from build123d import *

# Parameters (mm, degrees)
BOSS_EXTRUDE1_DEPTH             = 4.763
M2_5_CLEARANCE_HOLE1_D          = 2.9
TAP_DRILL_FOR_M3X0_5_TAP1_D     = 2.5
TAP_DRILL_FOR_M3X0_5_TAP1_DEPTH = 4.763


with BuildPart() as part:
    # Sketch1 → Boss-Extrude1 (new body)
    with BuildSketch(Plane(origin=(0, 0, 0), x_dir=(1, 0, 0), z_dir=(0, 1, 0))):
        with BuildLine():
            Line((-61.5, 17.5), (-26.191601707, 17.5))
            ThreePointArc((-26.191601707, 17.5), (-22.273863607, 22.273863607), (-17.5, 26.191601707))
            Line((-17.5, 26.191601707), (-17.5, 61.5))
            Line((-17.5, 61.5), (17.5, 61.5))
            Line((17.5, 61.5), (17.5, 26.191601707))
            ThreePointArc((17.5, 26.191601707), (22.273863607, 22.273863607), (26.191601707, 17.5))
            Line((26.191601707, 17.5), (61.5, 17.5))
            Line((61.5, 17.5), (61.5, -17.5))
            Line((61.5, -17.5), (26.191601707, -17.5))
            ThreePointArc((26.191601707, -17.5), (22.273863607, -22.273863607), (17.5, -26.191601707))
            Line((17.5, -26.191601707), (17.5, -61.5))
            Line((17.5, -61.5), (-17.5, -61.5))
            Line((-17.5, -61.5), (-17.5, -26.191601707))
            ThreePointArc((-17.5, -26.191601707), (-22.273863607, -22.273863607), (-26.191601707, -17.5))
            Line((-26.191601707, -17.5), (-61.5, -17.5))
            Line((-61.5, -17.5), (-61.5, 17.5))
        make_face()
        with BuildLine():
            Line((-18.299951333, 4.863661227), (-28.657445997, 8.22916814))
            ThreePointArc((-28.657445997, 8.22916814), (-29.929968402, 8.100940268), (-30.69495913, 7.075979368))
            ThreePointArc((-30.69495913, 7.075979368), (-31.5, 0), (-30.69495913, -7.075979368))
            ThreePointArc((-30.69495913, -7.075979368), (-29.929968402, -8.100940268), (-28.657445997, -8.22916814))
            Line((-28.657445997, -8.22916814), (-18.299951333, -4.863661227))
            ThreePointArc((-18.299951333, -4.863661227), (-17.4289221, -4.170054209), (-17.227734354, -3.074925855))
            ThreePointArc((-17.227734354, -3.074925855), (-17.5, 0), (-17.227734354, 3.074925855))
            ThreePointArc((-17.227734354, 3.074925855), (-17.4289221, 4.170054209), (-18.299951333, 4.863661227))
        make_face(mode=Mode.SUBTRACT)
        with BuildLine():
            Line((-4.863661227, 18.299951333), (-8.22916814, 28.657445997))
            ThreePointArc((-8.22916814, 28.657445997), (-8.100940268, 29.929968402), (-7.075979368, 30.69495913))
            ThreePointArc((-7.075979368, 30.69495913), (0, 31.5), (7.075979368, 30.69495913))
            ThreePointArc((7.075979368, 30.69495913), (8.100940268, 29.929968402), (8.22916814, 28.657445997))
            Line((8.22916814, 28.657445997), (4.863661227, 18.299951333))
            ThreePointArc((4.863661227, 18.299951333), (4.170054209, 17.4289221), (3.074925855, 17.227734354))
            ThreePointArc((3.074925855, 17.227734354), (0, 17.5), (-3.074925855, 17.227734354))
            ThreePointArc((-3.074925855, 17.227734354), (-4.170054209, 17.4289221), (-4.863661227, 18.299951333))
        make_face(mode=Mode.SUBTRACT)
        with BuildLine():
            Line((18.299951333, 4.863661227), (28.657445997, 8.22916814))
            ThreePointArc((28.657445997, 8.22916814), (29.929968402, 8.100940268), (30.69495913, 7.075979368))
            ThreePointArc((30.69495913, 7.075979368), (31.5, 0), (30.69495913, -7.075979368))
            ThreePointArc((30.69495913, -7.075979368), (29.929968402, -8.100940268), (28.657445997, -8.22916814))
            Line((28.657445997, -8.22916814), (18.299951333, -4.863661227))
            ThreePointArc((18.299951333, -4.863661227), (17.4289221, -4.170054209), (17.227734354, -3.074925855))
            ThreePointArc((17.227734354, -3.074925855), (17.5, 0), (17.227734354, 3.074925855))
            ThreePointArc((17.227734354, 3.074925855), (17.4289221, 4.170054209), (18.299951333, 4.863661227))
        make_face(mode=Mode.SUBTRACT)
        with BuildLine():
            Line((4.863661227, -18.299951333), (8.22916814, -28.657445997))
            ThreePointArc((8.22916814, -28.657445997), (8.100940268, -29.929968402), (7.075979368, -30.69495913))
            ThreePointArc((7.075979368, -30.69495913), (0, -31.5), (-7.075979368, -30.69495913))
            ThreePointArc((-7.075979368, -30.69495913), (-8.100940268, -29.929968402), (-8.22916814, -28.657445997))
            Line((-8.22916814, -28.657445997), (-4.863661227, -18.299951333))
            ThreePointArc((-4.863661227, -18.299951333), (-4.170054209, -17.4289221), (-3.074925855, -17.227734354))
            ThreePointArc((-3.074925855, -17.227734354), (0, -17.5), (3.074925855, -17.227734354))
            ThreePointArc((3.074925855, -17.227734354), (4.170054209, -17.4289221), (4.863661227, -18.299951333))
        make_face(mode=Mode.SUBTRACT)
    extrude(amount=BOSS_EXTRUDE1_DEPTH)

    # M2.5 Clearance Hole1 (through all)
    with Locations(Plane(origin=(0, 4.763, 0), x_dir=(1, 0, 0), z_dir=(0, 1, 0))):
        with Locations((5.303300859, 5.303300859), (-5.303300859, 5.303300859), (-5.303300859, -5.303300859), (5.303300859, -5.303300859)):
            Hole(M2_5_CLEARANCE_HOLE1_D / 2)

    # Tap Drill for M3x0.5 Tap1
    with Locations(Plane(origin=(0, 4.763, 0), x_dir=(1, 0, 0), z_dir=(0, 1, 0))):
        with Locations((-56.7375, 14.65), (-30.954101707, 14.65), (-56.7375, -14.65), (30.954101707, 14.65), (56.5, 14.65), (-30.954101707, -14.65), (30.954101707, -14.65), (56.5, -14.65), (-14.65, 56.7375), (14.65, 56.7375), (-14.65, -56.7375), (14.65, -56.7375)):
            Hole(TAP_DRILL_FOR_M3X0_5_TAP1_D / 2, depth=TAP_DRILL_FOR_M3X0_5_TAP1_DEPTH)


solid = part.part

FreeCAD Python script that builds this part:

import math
import FreeCAD as App
import Part
import Sketcher
from FreeCAD import Vector

doc = App.newDocument("Part")
params = doc.addObject("Spreadsheet::Sheet", "Params")
for row, (alias, value) in enumerate([
    ("sketch1_radius", "31.5 mm"),
    ("sketch1_radius2", "17.5 mm"),
    ("sketch1_width", "35 mm"),
    ("pad1_length", "4.763 mm"),
    ("sketch2_diameter", "2.9 mm"),
    ("hole_diameter", "2.9 mm"),
    ("sketch3_diameter", "2.5 mm"),
    ("hole2_diameter", "2.5 mm"),
    ("hole2_depth", "4.763 mm"),
], start=1):
    params.set(f"A{row}", alias)
    params.set(f"B{row}", "=" + value)
    params.setAlias(f"B{row}", alias)

body = doc.addObject("PartDesign::Body", "Body")

# Sketch on XZ plane
sketch1 = body.newObject("Sketcher::SketchObject", "Sketch")
sketch1.AttachmentSupport = (doc.getObject("XZ_Plane"), [""])
sketch1.MapMode = "FlatFace"
sketch1.addGeometry(Part.LineSegment(Vector(-26.2, -17.5, 0), Vector(-61.5, -17.5, 0)), False)
sketch1.addGeometry(Part.LineSegment(Vector(-61.5, -17.5, 0), Vector(-61.5, 17.5, 0)), False)
sketch1.addGeometry(Part.LineSegment(Vector(-61.5, 17.5, 0), Vector(-26.2, 17.5, 0)), False)
sketch1.addGeometry(Part.ArcOfCircle(Part.Circle(Vector(0, 0, 0), Vector(0, 0, 1), 31.5), math.radians(124), math.radians(146)), False)
sketch1.addGeometry(Part.LineSegment(Vector(-17.5, 26.2, 0), Vector(-17.5, 61.5, 0)), False)
sketch1.addGeometry(Part.LineSegment(Vector(-17.5, 61.5, 0), Vector(17.5, 61.5, 0)), False)
sketch1.addGeometry(Part.LineSegment(Vector(17.5, 61.5, 0), Vector(17.5, 26.2, 0)), False)
sketch1.addGeometry(Part.ArcOfCircle(Part.Circle(Vector(0, 0, 0), Vector(0, 0, 1), 31.5), math.radians(34), math.radians(56)), False)
sketch1.addGeometry(Part.LineSegment(Vector(26.2, 17.5, 0), Vector(61.5, 17.5, 0)), False)
sketch1.addGeometry(Part.LineSegment(Vector(61.5, 17.5, 0), Vector(61.5, -17.5, 0)), False)
sketch1.addGeometry(Part.LineSegment(Vector(61.5, -17.5, 0), Vector(26.2, -17.5, 0)), False)
sketch1.addGeometry(Part.ArcOfCircle(Part.Circle(Vector(0, 0, 0), Vector(0, 0, 1), 31.5), math.radians(-56), math.radians(-34)), False)
sketch1.addGeometry(Part.LineSegment(Vector(17.5, -26.2, 0), Vector(17.5, -61.5, 0)), False)
sketch1.addGeometry(Part.LineSegment(Vector(17.5, -61.5, 0), Vector(-17.5, -61.5, 0)), False)
sketch1.addGeometry(Part.LineSegment(Vector(-17.5, -61.5, 0), Vector(-17.5, -26.2, 0)), False)
sketch1.addGeometry(Part.ArcOfCircle(Part.Circle(Vector(0, 0, 0), Vector(0, 0, 1), 31.5), math.radians(-146), math.radians(-124)), False)
sketch1.addGeometry(Part.LineSegment(Vector(4.9, 18.3, 0), Vector(8.2, 28.7, 0)), False)
sketch1.addGeometry(Part.ArcOfCircle(Part.Circle(Vector(6.7, 29.1, 0), Vector(0, 0, 1), 1.6), math.radians(-18), math.radians(77)), False)
sketch1.addGeometry(Part.ArcOfCircle(Part.Circle(Vector(0, 0, 0), Vector(0, 0, 1), 31.5), math.radians(77), math.radians(103)), False)
sketch1.addGeometry(Part.ArcOfCircle(Part.Circle(Vector(-6.7, 29.1, 0), Vector(0, 0, 1), 1.6), math.radians(103), math.radians(198)), False)
sketch1.addGeometry(Part.LineSegment(Vector(-8.2, 28.7, 0), Vector(-4.9, 18.3, 0)), False)
sketch1.addGeometry(Part.ArcOfCircle(Part.Circle(Vector(-3.4, 18.8, 0), Vector(0, 0, 1), 1.6), math.radians(-162), math.radians(-80)), False)
sketch1.addGeometry(Part.ArcOfCircle(Part.Circle(Vector(0, 0, 0), Vector(0, 0, 1), 17.5), math.radians(80), math.radians(100)), False)
sketch1.addGeometry(Part.ArcOfCircle(Part.Circle(Vector(3.4, 18.8, 0), Vector(0, 0, 1), 1.6), math.radians(-100), math.radians(-18)), False)
sketch1.addGeometry(Part.LineSegment(Vector(18.3, -4.9, 0), Vector(28.7, -8.2, 0)), False)
sketch1.addGeometry(Part.ArcOfCircle(Part.Circle(Vector(29.1, -6.7, 0), Vector(0, 0, 1), 1.6), math.radians(-108), math.radians(-13)), False)
sketch1.addGeometry(Part.ArcOfCircle(Part.Circle(Vector(0, 0, 0), Vector(0, 0, 1), 31.5), math.radians(-13), math.radians(13)), False)
sketch1.addGeometry(Part.ArcOfCircle(Part.Circle(Vector(29.1, 6.7, 0), Vector(0, 0, 1), 1.6), math.radians(13), math.radians(108)), False)
sketch1.addGeometry(Part.LineSegment(Vector(28.7, 8.2, 0), Vector(18.3, 4.9, 0)), False)
sketch1.addGeometry(Part.ArcOfCircle(Part.Circle(Vector(18.8, 3.4, 0), Vector(0, 0, 1), 1.6), math.radians(108), math.radians(190)), False)
sketch1.addGeometry(Part.ArcOfCircle(Part.Circle(Vector(0, 0, 0), Vector(0, 0, 1), 17.5), math.radians(-10), math.radians(10)), False)
sketch1.addGeometry(Part.ArcOfCircle(Part.Circle(Vector(18.8, -3.4, 0), Vector(0, 0, 1), 1.6), math.radians(170), math.radians(252)), False)
sketch1.addGeometry(Part.ArcOfCircle(Part.Circle(Vector(-18.8, -3.4, 0), Vector(0, 0, 1), 1.6), math.radians(-72), math.radians(10)), False)
sketch1.addGeometry(Part.ArcOfCircle(Part.Circle(Vector(0, 0, 0), Vector(0, 0, 1), 17.5), math.radians(170), math.radians(190)), False)
sketch1.addGeometry(Part.ArcOfCircle(Part.Circle(Vector(-18.8, 3.4, 0), Vector(0, 0, 1), 1.6), math.radians(-10), math.radians(72)), False)
sketch1.addGeometry(Part.LineSegment(Vector(-18.3, 4.9, 0), Vector(-28.7, 8.2, 0)), False)
sketch1.addGeometry(Part.ArcOfCircle(Part.Circle(Vector(-29.1, 6.7, 0), Vector(0, 0, 1), 1.6), math.radians(72), math.radians(167)), False)
sketch1.addGeometry(Part.ArcOfCircle(Part.Circle(Vector(0, 0, 0), Vector(0, 0, 1), 31.5), math.radians(167), math.radians(193)), False)
sketch1.addGeometry(Part.ArcOfCircle(Part.Circle(Vector(-29.1, -6.7, 0), Vector(0, 0, 1), 1.6), math.radians(-167), math.radians(-72)), False)
sketch1.addGeometry(Part.LineSegment(Vector(-28.7, -8.2, 0), Vector(-18.3, -4.9, 0)), False)
sketch1.addGeometry(Part.LineSegment(Vector(-4.9, -18.3, 0), Vector(-8.2, -28.7, 0)), False)
sketch1.addGeometry(Part.ArcOfCircle(Part.Circle(Vector(-6.7, -29.1, 0), Vector(0, 0, 1), 1.6), math.radians(162), math.radians(257)), False)
sketch1.addGeometry(Part.ArcOfCircle(Part.Circle(Vector(0, 0, 0), Vector(0, 0, 1), 31.5), math.radians(-103), math.radians(-77)), False)
sketch1.addGeometry(Part.ArcOfCircle(Part.Circle(Vector(6.7, -29.1, 0), Vector(0, 0, 1), 1.6), math.radians(-77), math.radians(18)), False)
sketch1.addGeometry(Part.LineSegment(Vector(8.2, -28.7, 0), Vector(4.9, -18.3, 0)), False)
sketch1.addGeometry(Part.ArcOfCircle(Part.Circle(Vector(3.4, -18.8, 0), Vector(0, 0, 1), 1.6), math.radians(18), math.radians(100)), False)
sketch1.addGeometry(Part.ArcOfCircle(Part.Circle(Vector(0, 0, 0), Vector(0, 0, 1), 17.5), math.radians(-100), math.radians(-80)), False)
sketch1.addGeometry(Part.ArcOfCircle(Part.Circle(Vector(-3.4, -18.8, 0), Vector(0, 0, 1), 1.6), math.radians(80), math.radians(162)), False)
sketch1.addConstraint(Sketcher.Constraint("Coincident", 0, 2, 1, 1))
sketch1.addConstraint(Sketcher.Constraint("Coincident", 1, 2, 2, 1))
sketch1.addConstraint(Sketcher.Constraint("Coincident", 2, 2, 3, 2))
sketch1.addConstraint(Sketcher.Constraint("Coincident", 3, 1, 4, 1))
sketch1.addConstraint(Sketcher.Constraint("Coincident", 4, 2, 5, 1))
sketch1.addConstraint(Sketcher.Constraint("Coincident", 5, 2, 6, 1))
sketch1.addConstraint(Sketcher.Constraint("Coincident", 6, 2, 7, 2))
sketch1.addConstraint(Sketcher.Constraint("Coincident", 7, 1, 8, 1))
sketch1.addConstraint(Sketcher.Constraint("Coincident", 8, 2, 9, 1))
sketch1.addConstraint(Sketcher.Constraint("Coincident", 9, 2, 10, 1))
sketch1.addConstraint(Sketcher.Constraint("Coincident", 10, 2, 11, 2))
sketch1.addConstraint(Sketcher.Constraint("Coincident", 11, 1, 12, 1))
sketch1.addConstraint(Sketcher.Constraint("Coincident", 12, 2, 13, 1))
sketch1.addConstraint(Sketcher.Constraint("Coincident", 13, 2, 14, 1))
sketch1.addConstraint(Sketcher.Constraint("Coincident", 14, 2, 15, 2))
sketch1.addConstraint(Sketcher.Constraint("Coincident", 15, 1, 0, 1))
sketch1.addConstraint(Sketcher.Constraint("Tangent", 16, 2, 17, 1))
sketch1.addConstraint(Sketcher.Constraint("Tangent", 17, 2, 18, 1))
sketch1.addConstraint(Sketcher.Constraint("Tangent", 18, 2, 19, 1))
sketch1.addConstraint(Sketcher.Constraint("Tangent", 19, 2, 20, 1))
sketch1.addConstraint(Sketcher.Constraint("Tangent", 20, 2, 21, 1))
sketch1.addConstraint(Sketcher.Constraint("Tangent", 21, 2, 22, 2))
sketch1.addConstraint(Sketcher.Constraint("Tangent", 22, 1, 23, 1))
sketch1.addConstraint(Sketcher.Constraint("Tangent", 23, 2, 16, 1))
sketch1.addConstraint(Sketcher.Constraint("Tangent", 24, 2, 25, 1))
sketch1.addConstraint(Sketcher.Constraint("Tangent", 25, 2, 26, 1))
sketch1.addConstraint(Sketcher.Constraint("Tangent", 26, 2, 27, 1))
sketch1.addConstraint(Sketcher.Constraint("Tangent", 27, 2, 28, 1))
sketch1.addConstraint(Sketcher.Constraint("Tangent", 28, 2, 29, 1))
sketch1.addConstraint(Sketcher.Constraint("Tangent", 29, 2, 30, 2))
sketch1.addConstraint(Sketcher.Constraint("Tangent", 30, 1, 31, 1))
sketch1.addConstraint(Sketcher.Constraint("Tangent", 31, 2, 24, 1))
sketch1.addConstraint(Sketcher.Constraint("Tangent", 32, 2, 33, 2))
sketch1.addConstraint(Sketcher.Constraint("Tangent", 33, 1, 34, 1))
sketch1.addConstraint(Sketcher.Constraint("Tangent", 34, 2, 35, 1))
sketch1.addConstraint(Sketcher.Constraint("Tangent", 35, 2, 36, 1))
sketch1.addConstraint(Sketcher.Constraint("Tangent", 36, 2, 37, 1))
sketch1.addConstraint(Sketcher.Constraint("Tangent", 37, 2, 38, 1))
sketch1.addConstraint(Sketcher.Constraint("Tangent", 38, 2, 39, 1))
sketch1.addConstraint(Sketcher.Constraint("Tangent", 39, 2, 32, 1))
sketch1.addConstraint(Sketcher.Constraint("Tangent", 40, 2, 41, 1))
sketch1.addConstraint(Sketcher.Constraint("Tangent", 41, 2, 42, 1))
sketch1.addConstraint(Sketcher.Constraint("Tangent", 42, 2, 43, 1))
sketch1.addConstraint(Sketcher.Constraint("Tangent", 43, 2, 44, 1))
sketch1.addConstraint(Sketcher.Constraint("Tangent", 44, 2, 45, 1))
sketch1.addConstraint(Sketcher.Constraint("Tangent", 45, 2, 46, 2))
sketch1.addConstraint(Sketcher.Constraint("Tangent", 46, 1, 47, 1))
sketch1.addConstraint(Sketcher.Constraint("Tangent", 47, 2, 40, 1))
sketch1.addConstraint(Sketcher.Constraint("Horizontal", 0))
sketch1.addConstraint(Sketcher.Constraint("Vertical", 1))
sketch1.addConstraint(Sketcher.Constraint("Horizontal", 2))
sketch1.addConstraint(Sketcher.Constraint("Vertical", 4))
sketch1.addConstraint(Sketcher.Constraint("Horizontal", 5))
sketch1.addConstraint(Sketcher.Constraint("Vertical", 6))
sketch1.addConstraint(Sketcher.Constraint("Horizontal", 8))
sketch1.addConstraint(Sketcher.Constraint("Vertical", 9))
sketch1.addConstraint(Sketcher.Constraint("Horizontal", 10))
sketch1.addConstraint(Sketcher.Constraint("Vertical", 12))
sketch1.addConstraint(Sketcher.Constraint("Horizontal", 13))
sketch1.addConstraint(Sketcher.Constraint("Vertical", 14))
sketch1.addConstraint(Sketcher.Constraint("Coincident", 3, 3, -1, 1))
sketch1.addConstraint(Sketcher.Constraint("Coincident", 7, 3, -1, 1))
sketch1.addConstraint(Sketcher.Constraint("Coincident", 11, 3, -1, 1))
sketch1.addConstraint(Sketcher.Constraint("Coincident", 15, 3, -1, 1))
sketch1.addConstraint(Sketcher.Constraint("Coincident", 18, 3, -1, 1))
sketch1.addConstraint(Sketcher.Constraint("Coincident", 22, 3, -1, 1))
sketch1.addConstraint(Sketcher.Constraint("Coincident", 26, 3, -1, 1))
sketch1.addConstraint(Sketcher.Constraint("Coincident", 30, 3, -1, 1))
sketch1.addConstraint(Sketcher.Constraint("Coincident", 33, 3, -1, 1))
sketch1.addConstraint(Sketcher.Constraint("Coincident", 37, 3, -1, 1))
sketch1.addConstraint(Sketcher.Constraint("Coincident", 42, 3, -1, 1))
sketch1.addConstraint(Sketcher.Constraint("Coincident", 46, 3, -1, 1))
sketch1.addConstraint(Sketcher.Constraint("Equal", 3, 7))
sketch1.addConstraint(Sketcher.Constraint("Equal", 7, 11))
sketch1.addConstraint(Sketcher.Constraint("Equal", 11, 15))
sketch1.addConstraint(Sketcher.Constraint("Equal", 15, 18))
sketch1.addConstraint(Sketcher.Constraint("Equal", 17, 19))
sketch1.addConstraint(Sketcher.Constraint("Equal", 19, 21))
sketch1.addConstraint(Sketcher.Constraint("Equal", 21, 23))
sketch1.addConstraint(Sketcher.Constraint("Equal", 23, 25))
sketch1.addConstraint(Sketcher.Constraint("Equal", 18, 26))
sketch1.addConstraint(Sketcher.Constraint("Equal", 25, 27))
sketch1.addConstraint(Sketcher.Constraint("Equal", 27, 29))
sketch1.addConstraint(Sketcher.Constraint("Equal", 22, 30))
sketch1.addConstraint(Sketcher.Constraint("Equal", 29, 31))
sketch1.addConstraint(Sketcher.Constraint("Equal", 31, 32))
sketch1.addConstraint(Sketcher.Constraint("Equal", 30, 33))
sketch1.addConstraint(Sketcher.Constraint("Equal", 32, 34))
sketch1.addConstraint(Sketcher.Constraint("Equal", 34, 36))
sketch1.addConstraint(Sketcher.Constraint("Equal", 26, 37))
sketch1.addConstraint(Sketcher.Constraint("Equal", 36, 38))
sketch1.addConstraint(Sketcher.Constraint("Equal", 38, 41))
sketch1.addConstraint(Sketcher.Constraint("Equal", 37, 42))
sketch1.addConstraint(Sketcher.Constraint("Equal", 41, 43))
sketch1.addConstraint(Sketcher.Constraint("Equal", 43, 45))
sketch1.addConstraint(Sketcher.Constraint("Equal", 33, 46))
sketch1.addConstraint(Sketcher.Constraint("Equal", 45, 47))
sketch1.addConstraint(Sketcher.Constraint("Symmetric", 0, 2, 8, 2, -1, 1))
sketch1.addConstraint(Sketcher.Constraint("Symmetric", 4, 2, 12, 2, -1, 1))
sketch1.addConstraint(Sketcher.Constraint("Symmetric", 31, 2, 34, 2, -1, 1))
sketch1.addConstraint(Sketcher.Constraint("Symmetric", 27, 2, 38, 2, -1, 1))
sketch1.addConstraint(Sketcher.Constraint("Symmetric", 16, 2, 40, 2, -1, 1))
sketch1.addConstraint(Sketcher.Constraint("Symmetric", 19, 2, 43, 2, -1, 1))
sketch1.addConstraint(Sketcher.Constraint("Symmetric", 16, 2, 19, 2, -2))
sketch1.addConstraint(Sketcher.Constraint("Symmetric", 28, 2, 34, 2, -2))
sketch1.addConstraint(Sketcher.Constraint("Perpendicular", 16, 24))
sketch1.addConstraint(Sketcher.Constraint("Horizontal", 3, 1, 6, 2))
sketch1.addConstraint(Sketcher.Constraint("Horizontal", 2, 2, 7, 1))
sketch1.addConstraint(Sketcher.Constraint("Horizontal", 0, 2, 9, 2))
sketch1.addConstraint(Sketcher.Constraint("Horizontal", 11, 1, 14, 2))
sketch1.addConstraint(Sketcher.Constraint("Equal", 13, 1))
sketch1.addConstraint(Sketcher.Constraint("Equal", 10, 4))
sketch1.addConstraint(Sketcher.Constraint("Equal", 20, 24))
sketch1.addConstraint(Sketcher.Constraint("Radius", 3, 31.5))
sketch1.addConstraint(Sketcher.Constraint("Radius", 22, 17.5))
sketch1.addConstraint(Sketcher.Constraint("DistanceX", 5, 1, 5, 2, 35.0))
sketch1.addConstraint(Sketcher.Constraint("DistanceX", 0, 2, -1, 1, 61.5))
sketch1.addConstraint(Sketcher.Constraint("Radius", 17, 1.5875))
sketch1.addConstraint(Sketcher.Constraint("Distance", 16, 10.890562))
sketch1.addConstraint(Sketcher.Constraint("DistanceY", -1, 1, 17, 3, 29.148031))
sketch1.setExpression("Constraints[113]", "Params.sketch1_radius")
sketch1.setExpression("Constraints[114]", "Params.sketch1_radius2")
sketch1.setExpression("Constraints[115]", "Params.sketch1_width")
pad1 = body.newObject("PartDesign::Pad", "Pad")
pad1.Profile = sketch1
pad1.setExpression("Length", "Params.pad1_length")
pad1.Reversed = True

# Sketch on XZ plane
sketch2 = body.newObject("Sketcher::SketchObject", "Sketch001")
sketch2.AttachmentSupport = (doc.getObject("XZ_Plane"), [""])
sketch2.MapMode = "FlatFace"
sketch2.AttachmentOffset = App.Placement(Vector(0, 0, -4.763), App.Rotation())
sketch2.addGeometry(Part.Circle(Vector(5.3, -5.3, 0), Vector(0, 0, 1), 1.4), False)
sketch2.addGeometry(Part.Circle(Vector(-5.3, -5.3, 0), Vector(0, 0, 1), 1.4), False)
sketch2.addGeometry(Part.Circle(Vector(-5.3, 5.3, 0), Vector(0, 0, 1), 1.4), False)
sketch2.addGeometry(Part.Circle(Vector(5.3, 5.3, 0), Vector(0, 0, 1), 1.4), False)
sketch2.addConstraint(Sketcher.Constraint("Equal", 0, 1))
sketch2.addConstraint(Sketcher.Constraint("Equal", 1, 2))
sketch2.addConstraint(Sketcher.Constraint("Equal", 2, 3))
sketch2.addConstraint(Sketcher.Constraint("Symmetric", 0, 3, 2, 3, -1, 1))
sketch2.addConstraint(Sketcher.Constraint("Symmetric", 1, 3, 3, 3, -1, 1))
sketch2.addConstraint(Sketcher.Constraint("Symmetric", 0, 3, 1, 3, -2))
sketch2.addConstraint(Sketcher.Constraint("Diameter", 0, 2.9))
sketch2.addConstraint(Sketcher.Constraint("DistanceX", -1, 1, 0, 3, 5.303301))
sketch2.addConstraint(Sketcher.Constraint("DistanceY", 0, 3, -1, 1, 5.303301))
sketch2.setExpression("Constraints[6]", "Params.sketch2_diameter")
doc.recompute()
hole = body.newObject("PartDesign::Hole", "Hole")
hole.Profile = sketch2
hole.ThreadType = "None"
hole.setExpression("Diameter", "Params.hole_diameter")
hole.DepthType = "ThroughAll"
hole.Reversed = True

# Sketch on XZ plane
sketch3 = body.newObject("Sketcher::SketchObject", "Sketch002")
sketch3.AttachmentSupport = (doc.getObject("XZ_Plane"), [""])
sketch3.MapMode = "FlatFace"
sketch3.AttachmentOffset = App.Placement(Vector(0, 0, -4.763), App.Rotation())
sketch3.addGeometry(Part.Circle(Vector(-56.7, -14.7, 0), Vector(0, 0, 1), 1.2), False)
sketch3.addGeometry(Part.Circle(Vector(-31, -14.7, 0), Vector(0, 0, 1), 1.2), False)
sketch3.addGeometry(Part.Circle(Vector(-56.7, 14.7, 0), Vector(0, 0, 1), 1.2), False)
sketch3.addGeometry(Part.Circle(Vector(31, -14.7, 0), Vector(0, 0, 1), 1.2), False)
sketch3.addGeometry(Part.Circle(Vector(56.5, -14.7, 0), Vector(0, 0, 1), 1.2), False)
sketch3.addGeometry(Part.Circle(Vector(-31, 14.7, 0), Vector(0, 0, 1), 1.2), False)
sketch3.addGeometry(Part.Circle(Vector(31, 14.7, 0), Vector(0, 0, 1), 1.2), False)
sketch3.addGeometry(Part.Circle(Vector(56.5, 14.7, 0), Vector(0, 0, 1), 1.2), False)
sketch3.addGeometry(Part.Circle(Vector(-14.7, -56.7, 0), Vector(0, 0, 1), 1.2), False)
sketch3.addGeometry(Part.Circle(Vector(14.7, -56.7, 0), Vector(0, 0, 1), 1.2), False)
sketch3.addGeometry(Part.Circle(Vector(-14.7, 56.7, 0), Vector(0, 0, 1), 1.2), False)
sketch3.addGeometry(Part.Circle(Vector(14.7, 56.7, 0), Vector(0, 0, 1), 1.2), False)
sketch3.addConstraint(Sketcher.Constraint("Equal", 0, 1))
sketch3.addConstraint(Sketcher.Constraint("Equal", 1, 2))
sketch3.addConstraint(Sketcher.Constraint("Equal", 2, 3))
sketch3.addConstraint(Sketcher.Constraint("Equal", 3, 4))
sketch3.addConstraint(Sketcher.Constraint("Equal", 4, 5))
sketch3.addConstraint(Sketcher.Constraint("Equal", 5, 6))
sketch3.addConstraint(Sketcher.Constraint("Equal", 6, 7))
sketch3.addConstraint(Sketcher.Constraint("Equal", 7, 8))
sketch3.addConstraint(Sketcher.Constraint("Equal", 8, 9))
sketch3.addConstraint(Sketcher.Constraint("Equal", 9, 10))
sketch3.addConstraint(Sketcher.Constraint("Equal", 10, 11))
sketch3.addConstraint(Sketcher.Constraint("Symmetric", 3, 3, 5, 3, -1, 1))
sketch3.addConstraint(Sketcher.Constraint("Symmetric", 1, 3, 6, 3, -1, 1))
sketch3.addConstraint(Sketcher.Constraint("Symmetric", 9, 3, 10, 3, -1, 1))
sketch3.addConstraint(Sketcher.Constraint("Symmetric", 8, 3, 11, 3, -1, 1))
sketch3.addConstraint(Sketcher.Constraint("Symmetric", 1, 3, 3, 3, -2))
sketch3.addConstraint(Sketcher.Constraint("Symmetric", 8, 3, 9, 3, -2))
sketch3.addConstraint(Sketcher.Constraint("Symmetric", 0, 3, 2, 3, -1))
sketch3.addConstraint(Sketcher.Constraint("Symmetric", 4, 3, 7, 3, -1))
sketch3.addConstraint(Sketcher.Constraint("Horizontal", 0, 3, 1, 3))
sketch3.addConstraint(Sketcher.Constraint("Horizontal", 3, 3, 4, 3))
sketch3.addConstraint(Sketcher.Constraint("Diameter", 0, 2.5))
sketch3.addConstraint(Sketcher.Constraint("DistanceX", -1, 1, 4, 3, 56.5))
sketch3.addConstraint(Sketcher.Constraint("DistanceY", 0, 3, 2, 3, 29.3))
sketch3.addConstraint(Sketcher.Constraint("DistanceX", 8, 3, 9, 3, 29.3))
sketch3.addConstraint(Sketcher.Constraint("DistanceX", 0, 3, -1, 1, 56.7375))
sketch3.addConstraint(Sketcher.Constraint("DistanceX", 1, 3, -1, 1, 30.954102))
sketch3.addConstraint(Sketcher.Constraint("DistanceY", 8, 3, -1, 1, 56.7375))
sketch3.setExpression("Constraints[21]", "Params.sketch3_diameter")
doc.recompute()
hole2 = body.newObject("PartDesign::Hole", "Hole001")
hole2.Profile = sketch3
hole2.ThreadType = "None"
hole2.setExpression("Diameter", "Params.hole2_diameter")
hole2.DepthType = "Dimension"
hole2.setExpression("Depth", "Params.hole2_depth")
hole2.DrillPoint = "Flat"
hole2.Reversed = True

doc.recompute()
